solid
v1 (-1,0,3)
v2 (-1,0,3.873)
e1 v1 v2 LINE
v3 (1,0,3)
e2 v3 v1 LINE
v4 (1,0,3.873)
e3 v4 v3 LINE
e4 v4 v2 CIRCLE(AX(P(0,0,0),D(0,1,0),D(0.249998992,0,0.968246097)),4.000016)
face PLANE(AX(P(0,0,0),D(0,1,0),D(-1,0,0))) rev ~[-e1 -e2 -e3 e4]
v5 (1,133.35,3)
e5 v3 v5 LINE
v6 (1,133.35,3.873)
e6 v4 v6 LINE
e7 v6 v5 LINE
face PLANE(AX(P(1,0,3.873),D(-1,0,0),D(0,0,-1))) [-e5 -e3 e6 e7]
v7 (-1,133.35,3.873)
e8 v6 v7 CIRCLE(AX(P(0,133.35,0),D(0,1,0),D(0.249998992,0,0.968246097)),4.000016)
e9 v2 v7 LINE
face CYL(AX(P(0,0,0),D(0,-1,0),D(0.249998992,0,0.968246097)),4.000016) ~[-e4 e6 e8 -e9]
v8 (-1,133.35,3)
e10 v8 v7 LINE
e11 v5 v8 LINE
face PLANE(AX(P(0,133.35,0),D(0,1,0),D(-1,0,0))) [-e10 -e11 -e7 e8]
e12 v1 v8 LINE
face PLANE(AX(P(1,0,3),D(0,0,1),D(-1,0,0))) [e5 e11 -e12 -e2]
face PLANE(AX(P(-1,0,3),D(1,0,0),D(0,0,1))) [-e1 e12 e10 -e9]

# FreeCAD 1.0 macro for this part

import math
import FreeCAD as App
import Part
import Sketcher

doc = App.newDocument("Part")
body = doc.addObject("PartDesign::Body", "Body")

# Sketch on XZ plane
sketch1 = body.newObject("Sketcher::SketchObject", "Sketch")
sketch1.AttachmentSupport = (doc.getObject("XZ_Plane"), [""])
sketch1.MapMode = "FlatFace"
sketch1.addGeometry([
    Part.LineSegment(App.Vector(1, 3, 0), App.Vector(1, 3.9, 0)),
    Part.ArcOfCircle(Part.Circle(App.Vector(0, 0, 0), App.Vector(0, 0, 1), 4), math.radians(104), math.radians(436)),
    Part.LineSegment(App.Vector(-1, 3.9, 0), App.Vector(-1, 3, 0)),
    Part.LineSegment(App.Vector(-1, 3, 0), App.Vector(1, 3, 0)),
], False)
sketch1.addConstraint([
    Sketcher.Constraint("Coincident", 0, 2, 1, 2),
    Sketcher.Constraint("Coincident", 1, 1, 2, 1),
    Sketcher.Constraint("Coincident", 2, 2, 3, 1),
    Sketcher.Constraint("Coincident", 3, 2, 0, 1),
    Sketcher.Constraint("Vertical", 0),
    Sketcher.Constraint("Vertical", 2),
    Sketcher.Constraint("Horizontal", 3),
    Sketcher.Constraint("Coincident", 1, 3, -1, 1),
    Sketcher.Constraint("Horizontal", 0, 2, 1, 1),
    Sketcher.Constraint("Radius", 1, 4.0),
    Sketcher.Constraint("DistanceX", 3, 1, 3, 2, 2.0),
    Sketcher.Constraint("DistanceY", -1, 1, 2, 2, 3.0),
])
pad1 = body.newObject("PartDesign::Pad", "Pad")
pad1.Profile = sketch1
pad1.Length = 133.35
pad1.Reversed = True

doc.recompute()
